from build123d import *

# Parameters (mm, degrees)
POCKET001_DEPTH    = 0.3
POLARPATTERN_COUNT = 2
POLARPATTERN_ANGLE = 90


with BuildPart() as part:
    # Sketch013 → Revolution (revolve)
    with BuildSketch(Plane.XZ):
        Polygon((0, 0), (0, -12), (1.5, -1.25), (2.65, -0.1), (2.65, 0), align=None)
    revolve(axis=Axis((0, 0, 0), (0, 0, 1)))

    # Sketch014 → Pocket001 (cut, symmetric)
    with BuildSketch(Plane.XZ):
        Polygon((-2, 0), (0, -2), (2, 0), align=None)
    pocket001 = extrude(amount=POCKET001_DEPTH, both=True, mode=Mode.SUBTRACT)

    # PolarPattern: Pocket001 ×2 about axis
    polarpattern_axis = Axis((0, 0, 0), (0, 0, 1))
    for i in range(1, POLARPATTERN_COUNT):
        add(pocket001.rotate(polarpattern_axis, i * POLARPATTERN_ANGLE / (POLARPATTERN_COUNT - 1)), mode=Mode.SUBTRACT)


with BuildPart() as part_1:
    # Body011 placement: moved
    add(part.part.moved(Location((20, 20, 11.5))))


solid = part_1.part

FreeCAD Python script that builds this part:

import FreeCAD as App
import Part
import Sketcher
from FreeCAD import Vector
Q = App.Units.Quantity


def add_polygon(sketch, points):
    """Adds a closed chain of lines whose ends are joined by coincident constraints."""
    first, n = sketch.GeometryCount, len(points)
    for a, b in zip(points, points[1:] + points[:1]):
        sketch.addGeometry(Part.LineSegment(App.Vector(*a, 0), App.Vector(*b, 0)), False)
    for i in range(n):
        sketch.addConstraint(Sketcher.Constraint("Coincident", first + i, 2, first + (i + 1) % n, 1))

doc = App.newDocument("Part")
body = doc.addObject("PartDesign::Body", "Body")

# Sketch on XZ plane
sketch1 = body.newObject("Sketcher::SketchObject", "Sketch")
sketch1.AttachmentSupport = (doc.getObject("XZ_Plane"), [""])
sketch1.MapMode = "FlatFace"
add_polygon(sketch1, [(0, 0), (0, -12), (1.5, -1.25), (2.65, -0.1), (2.65, 0)])  # lines 0-4
sketch1.addConstraint(Sketcher.Constraint("Vertical", 0))
sketch1.addConstraint(Sketcher.Constraint("Vertical", 3))
sketch1.addConstraint(Sketcher.Constraint("Horizontal", 4))
sketch1.addConstraint(Sketcher.Constraint("Coincident", 4, 2, -1, 1))
sketch1.addConstraint(Sketcher.Constraint("DistanceY", 0, 2, 0, 1, 12.0))
sketch1.addConstraint(Sketcher.Constraint("Angle", 2, Q("45 deg")))
sketch1.addConstraint(Sketcher.Constraint("DistanceY", 3, 1, 3, 2, 0.1))
sketch1.addConstraint(Sketcher.Constraint("DistanceX", 4, 2, 4, 1, 2.65))
sketch1.addConstraint(Sketcher.Constraint("DistanceX", -1, 1, 1, 2, 1.5))
revolution = body.newObject("PartDesign::Revolution", "Revolution")
revolution.Profile = sketch1
revolution.ReferenceAxis = (sketch1, ["V_Axis"])
revolution.Angle = 360

# Sketch on XZ plane
sketch2 = body.newObject("Sketcher::SketchObject", "Sketch001")
sketch2.AttachmentSupport = (doc.getObject("XZ_Plane"), [""])
sketch2.MapMode = "FlatFace"
add_polygon(sketch2, [(-2, 0), (0, -2), (2, 0)])  # lines 0-2
sketch2.addConstraint(Sketcher.Constraint("Horizontal", 2))
sketch2.addConstraint(Sketcher.Constraint("Symmetric", 1, 2, 2, 2, -1, 1))
sketch2.addConstraint(Sketcher.Constraint("PointOnObject", 0, 2, -2))
sketch2.addConstraint(Sketcher.Constraint("Perpendicular", 0, 1))
sketch2.addConstraint(Sketcher.Constraint("DistanceX", 2, 2, 2, 1, 4.0))
pocket1 = body.newObject("PartDesign::Pocket", "Pocket")
pocket1.Profile = sketch2
pocket1.Length = 0.6
pocket1.Midplane = True
doc.recompute()

polarpattern = body.newObject("PartDesign::PolarPattern", "PolarPattern")
polarpattern.Originals = [pocket1]
polarpattern.Axis = (doc.getObject("Z_Axis"), [""])
polarpattern.Angle = 90
polarpattern.Occurrences = 2
body.Tip = polarpattern
body2 = doc.addObject("PartDesign::Body", "Body001")
doc.recompute()

body.Placement = App.Placement(Vector(20, 20, 11.5), App.Rotation(Vector(0, 0, 1), 0))
boolean = body2.newObject("PartDesign::Boolean", "Boolean")
boolean.Type = "Fuse"
boolean.addObjects([body])

doc.recompute()
